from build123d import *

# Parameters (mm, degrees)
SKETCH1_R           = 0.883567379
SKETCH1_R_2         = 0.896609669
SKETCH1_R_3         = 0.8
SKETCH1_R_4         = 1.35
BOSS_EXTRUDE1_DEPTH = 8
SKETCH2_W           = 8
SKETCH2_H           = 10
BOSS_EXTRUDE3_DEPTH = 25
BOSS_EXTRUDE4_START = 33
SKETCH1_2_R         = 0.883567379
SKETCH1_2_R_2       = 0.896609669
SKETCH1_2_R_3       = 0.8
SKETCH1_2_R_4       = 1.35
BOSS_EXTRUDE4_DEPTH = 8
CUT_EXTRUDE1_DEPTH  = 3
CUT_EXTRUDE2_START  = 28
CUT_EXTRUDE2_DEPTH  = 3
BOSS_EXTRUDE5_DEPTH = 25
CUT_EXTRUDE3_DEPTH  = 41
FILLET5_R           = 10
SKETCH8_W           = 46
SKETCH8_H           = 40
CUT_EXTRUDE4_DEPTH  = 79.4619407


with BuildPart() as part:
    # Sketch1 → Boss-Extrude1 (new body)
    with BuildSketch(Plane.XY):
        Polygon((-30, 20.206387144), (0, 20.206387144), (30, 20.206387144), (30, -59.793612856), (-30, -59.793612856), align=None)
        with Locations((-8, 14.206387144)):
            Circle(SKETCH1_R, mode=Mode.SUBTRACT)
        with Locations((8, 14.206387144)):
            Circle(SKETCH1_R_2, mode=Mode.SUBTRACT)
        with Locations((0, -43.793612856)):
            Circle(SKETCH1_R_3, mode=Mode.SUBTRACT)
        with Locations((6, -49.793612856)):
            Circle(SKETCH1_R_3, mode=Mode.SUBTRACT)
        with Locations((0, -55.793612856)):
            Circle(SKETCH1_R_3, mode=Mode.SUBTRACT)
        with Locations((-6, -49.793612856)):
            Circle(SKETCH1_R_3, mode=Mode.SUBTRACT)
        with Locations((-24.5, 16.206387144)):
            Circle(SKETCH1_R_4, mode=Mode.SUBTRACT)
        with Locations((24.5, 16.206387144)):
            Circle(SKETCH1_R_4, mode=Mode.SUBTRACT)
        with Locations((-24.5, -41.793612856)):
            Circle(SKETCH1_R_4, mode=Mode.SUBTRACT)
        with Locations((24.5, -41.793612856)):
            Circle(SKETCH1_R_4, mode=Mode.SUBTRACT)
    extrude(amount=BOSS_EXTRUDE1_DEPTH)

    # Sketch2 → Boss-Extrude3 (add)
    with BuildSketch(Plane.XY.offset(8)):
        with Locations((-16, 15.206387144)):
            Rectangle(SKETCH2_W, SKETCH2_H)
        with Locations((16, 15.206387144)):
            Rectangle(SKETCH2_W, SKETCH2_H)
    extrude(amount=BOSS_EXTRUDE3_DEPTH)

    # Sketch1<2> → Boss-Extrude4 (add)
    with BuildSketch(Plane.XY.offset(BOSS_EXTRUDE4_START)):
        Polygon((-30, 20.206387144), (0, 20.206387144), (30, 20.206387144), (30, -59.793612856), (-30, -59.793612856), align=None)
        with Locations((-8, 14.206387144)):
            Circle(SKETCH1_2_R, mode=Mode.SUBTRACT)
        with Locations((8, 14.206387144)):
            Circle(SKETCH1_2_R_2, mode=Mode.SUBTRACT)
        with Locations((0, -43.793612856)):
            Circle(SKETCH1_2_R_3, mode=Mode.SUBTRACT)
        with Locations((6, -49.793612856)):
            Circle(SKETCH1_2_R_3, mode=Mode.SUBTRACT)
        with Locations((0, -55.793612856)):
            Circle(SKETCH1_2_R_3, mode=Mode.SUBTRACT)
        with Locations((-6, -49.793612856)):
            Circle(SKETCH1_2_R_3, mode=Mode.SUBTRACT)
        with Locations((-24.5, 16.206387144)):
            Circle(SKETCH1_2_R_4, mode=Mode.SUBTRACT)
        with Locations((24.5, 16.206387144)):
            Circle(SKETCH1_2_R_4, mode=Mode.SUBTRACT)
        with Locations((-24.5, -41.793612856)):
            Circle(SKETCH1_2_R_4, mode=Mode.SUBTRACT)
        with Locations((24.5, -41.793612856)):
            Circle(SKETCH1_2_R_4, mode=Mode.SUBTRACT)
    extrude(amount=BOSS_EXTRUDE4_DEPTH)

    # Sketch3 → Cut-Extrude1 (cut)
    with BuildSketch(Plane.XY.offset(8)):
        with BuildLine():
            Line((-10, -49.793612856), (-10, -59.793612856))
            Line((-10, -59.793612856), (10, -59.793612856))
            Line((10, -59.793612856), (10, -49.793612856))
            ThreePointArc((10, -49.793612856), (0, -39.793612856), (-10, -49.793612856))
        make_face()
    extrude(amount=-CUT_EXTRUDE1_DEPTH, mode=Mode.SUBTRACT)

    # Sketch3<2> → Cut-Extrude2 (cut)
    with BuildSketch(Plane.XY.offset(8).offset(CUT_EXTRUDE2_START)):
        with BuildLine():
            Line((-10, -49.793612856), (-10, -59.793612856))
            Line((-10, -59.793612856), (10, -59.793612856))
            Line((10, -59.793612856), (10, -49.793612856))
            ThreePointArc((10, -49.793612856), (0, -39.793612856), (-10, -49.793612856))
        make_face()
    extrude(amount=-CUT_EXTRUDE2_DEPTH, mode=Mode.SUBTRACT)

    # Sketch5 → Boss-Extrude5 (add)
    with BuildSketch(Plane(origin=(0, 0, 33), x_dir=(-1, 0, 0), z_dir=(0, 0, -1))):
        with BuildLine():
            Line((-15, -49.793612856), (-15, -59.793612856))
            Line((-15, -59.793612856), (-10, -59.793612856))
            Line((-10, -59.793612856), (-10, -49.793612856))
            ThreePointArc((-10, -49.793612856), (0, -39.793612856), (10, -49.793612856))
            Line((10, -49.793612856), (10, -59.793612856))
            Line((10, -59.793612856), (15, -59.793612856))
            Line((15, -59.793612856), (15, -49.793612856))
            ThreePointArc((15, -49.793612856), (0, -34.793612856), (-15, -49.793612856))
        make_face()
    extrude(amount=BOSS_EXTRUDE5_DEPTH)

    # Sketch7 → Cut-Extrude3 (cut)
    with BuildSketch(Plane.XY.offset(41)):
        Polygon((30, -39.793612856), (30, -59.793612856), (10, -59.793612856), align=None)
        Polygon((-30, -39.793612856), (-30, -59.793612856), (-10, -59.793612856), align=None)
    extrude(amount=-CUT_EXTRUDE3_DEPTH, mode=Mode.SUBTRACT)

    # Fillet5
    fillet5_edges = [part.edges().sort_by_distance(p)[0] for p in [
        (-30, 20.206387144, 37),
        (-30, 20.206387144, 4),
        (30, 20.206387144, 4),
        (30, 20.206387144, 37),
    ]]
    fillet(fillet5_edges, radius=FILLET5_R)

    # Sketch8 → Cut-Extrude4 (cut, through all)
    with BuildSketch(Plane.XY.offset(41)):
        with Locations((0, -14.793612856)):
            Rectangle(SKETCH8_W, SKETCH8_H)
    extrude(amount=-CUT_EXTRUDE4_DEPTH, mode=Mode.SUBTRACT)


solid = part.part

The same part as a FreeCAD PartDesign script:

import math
import FreeCAD as App
import Part
import Sketcher
Q = App.Units.Quantity


def edges_at(feature, points):
    """Names of the edges that pass closest to the given points."""
    edges = feature.Shape.Edges
    near = lambda p: min(range(len(edges)), key=lambda i: edges[i].distToShape(Part.Vertex(*p))[0])
    return sorted({f"Edge{near(p) + 1}" for p in points})

doc = App.newDocument("Part")
body = doc.addObject("PartDesign::Body", "Body")

sketch1 = body.newObject("Sketcher::SketchObject", "Sketch")
sketch1.AttachmentSupport = (doc.getObject("XY_Plane"), [""])
sketch1.MapMode = "FlatFace"
sketch1.addGeometry([
    Part.LineSegment(App.Vector(30, 20.206387, 0), App.Vector(-30, 20.206387, 0)),
    Part.LineSegment(App.Vector(-30, 20.206387, 0), App.Vector(-30, -59.793613, 0)),
    Part.LineSegment(App.Vector(-30, -59.793613, 0), App.Vector(30, -59.793613, 0)),
    Part.LineSegment(App.Vector(30, -59.793613, 0), App.Vector(30, 20.206387, 0)),
    Part.Circle(App.Vector(24.5, -41.793613, 0), App.Vector(0, 0, 1), 1.35),
    Part.Circle(App.Vector(6, -49.793613, 0), App.Vector(0, 0, 1), 0.8),
    Part.Circle(App.Vector(0, -55.793613, 0), App.Vector(0, 0, 1), 0.8),
    Part.Circle(App.Vector(-6, -49.793613, 0), App.Vector(0, 0, 1), 0.8),
    Part.Circle(App.Vector(0, -43.793613, 0), App.Vector(0, 0, 1), 0.8),
    Part.Circle(App.Vector(-24.5, -41.793613, 0), App.Vector(0, 0, 1), 1.35),
    Part.Circle(App.Vector(24.5, 16.206387, 0), App.Vector(0, 0, 1), 1.35),
    Part.Circle(App.Vector(8, 14.206387, 0), App.Vector(0, 0, 1), 0.89661),
    Part.Circle(App.Vector(-8, 14.206387, 0), App.Vector(0, 0, 1), 0.883567),
    Part.Circle(App.Vector(-24.5, 16.206387, 0), App.Vector(0, 0, 1), 1.35),
], False)
sketch1.addConstraint([
    Sketcher.Constraint("Coincident", 0, 2, 1, 1),
    Sketcher.Constraint("Coincident", 1, 2, 2, 1),
    Sketcher.Constraint("Coincident", 2, 2, 3, 1),
    Sketcher.Constraint("Coincident", 3, 2, 0, 1),
    Sketcher.Constraint("Horizontal", 0),
    Sketcher.Constraint("Vertical", 1),
    Sketcher.Constraint("Horizontal", 2),
    Sketcher.Constraint("Vertical", 3),
    Sketcher.Constraint("Equal", 5, 6),
    Sketcher.Constraint("Equal", 6, 7),
    Sketcher.Constraint("Equal", 7, 8),
    Sketcher.Constraint("Equal", 4, 9),
    Sketcher.Constraint("Equal", 9, 10),
    Sketcher.Constraint("Equal", 10, 13),
    Sketcher.Constraint("Symmetric", 5, 3, 7, 3, -2),
    Sketcher.Constraint("Symmetric", 4, 3, 9, 3, -2),
    Sketcher.Constraint("Symmetric", 11, 3, 12, 3, -2),
    Sketcher.Constraint("Symmetric", 10, 3, 13, 3, -2),
    Sketcher.Constraint("PointOnObject", 6, 3, -2),
    Sketcher.Constraint("PointOnObject", 8, 3, -2),
    Sketcher.Constraint("Vertical", 4, 3, 10, 3),
    Sketcher.Constraint("Diameter", 4, Q("2.7 mm")),
    Sketcher.Constraint("Diameter", 5, Q("1.6 mm")),
    Sketcher.Constraint("DistanceX", 0, 2, 0, 1, Q("60 mm")),
    Sketcher.Constraint("DistanceY", 1, 2, 1, 1, Q("80 mm")),
    Sketcher.Constraint("DistanceX", -1, 1, 5, 3, Q("6 mm")),
    Sketcher.Constraint("DistanceX", -1, 1, 11, 3, Q("8 mm")),
    Sketcher.Constraint("DistanceX", 0, 2, -1, 1, Q("30 mm")),
    Sketcher.Constraint("DistanceY", 5, 3, 4, 3, Q("8 mm")),
    Sketcher.Constraint("DistanceY", 6, 3, 5, 3, Q("6 mm")),
    Sketcher.Constraint("DistanceY", 5, 3, 8, 3, Q("6 mm")),
    Sketcher.Constraint("DistanceX", 9, 3, 4, 3, Q("49 mm")),
    Sketcher.Constraint("DistanceY", 4, 3, 10, 3, Q("58 mm")),
    Sketcher.Constraint("DistanceY", 11, 3, 10, 3, Q("2 mm")),
    Sketcher.Constraint("DistanceY", 13, 3, 0, 2, Q("4 mm")),
    Sketcher.Constraint("Diameter", 11, Q("1.793219 mm")),
    Sketcher.Constraint("Diameter", 12, Q("1.767135 mm")),
    Sketcher.Constraint("DistanceY", 4, 3, -1, 1, Q("41.793613 mm")),
])
pad1 = body.newObject("PartDesign::Pad", "Pad")
pad1.Profile = sketch1
pad1.Length = 8

sketch2 = body.newObject("Sketcher::SketchObject", "Sketch001")
sketch2.AttachmentSupport = (doc.getObject("XY_Plane"), [""])
sketch2.MapMode = "FlatFace"
sketch2.AttachmentOffset = App.Placement(App.Vector(0, 0, 8), App.Rotation())
sketch2.addGeometry([
    Part.LineSegment(App.Vector(-20, 20.206387, 0), App.Vector(-20, 10.206387, 0)),
    Part.LineSegment(App.Vector(-20, 10.206387, 0), App.Vector(-12, 10.206387, 0)),
    Part.LineSegment(App.Vector(-12, 10.206387, 0), App.Vector(-12, 20.206387, 0)),
    Part.LineSegment(App.Vector(-12, 20.206387, 0), App.Vector(-20, 20.206387, 0)),
    Part.LineSegment(App.Vector(12, 20.206387, 0), App.Vector(12, 10.206387, 0)),
    Part.LineSegment(App.Vector(12, 10.206387, 0), App.Vector(20, 10.206387, 0)),
    Part.LineSegment(App.Vector(20, 10.206387, 0), App.Vector(20, 20.206387, 0)),
    Part.LineSegment(App.Vector(20, 20.206387, 0), App.Vector(12, 20.206387, 0)),
], False)
sketch2.addConstraint([
    Sketcher.Constraint("Coincident", 0, 2, 1, 1),
    Sketcher.Constraint("Coincident", 1, 2, 2, 1),
    Sketcher.Constraint("Coincident", 2, 2, 3, 1),
    Sketcher.Constraint("Coincident", 3, 2, 0, 1),
    Sketcher.Constraint("Coincident", 4, 2, 5, 1),
    Sketcher.Constraint("Coincident", 5, 2, 6, 1),
    Sketcher.Constraint("Coincident", 6, 2, 7, 1),
    Sketcher.Constraint("Coincident", 7, 2, 4, 1),
    Sketcher.Constraint("Vertical", 0),
    Sketcher.Constraint("Horizontal", 1),
    Sketcher.Constraint("Vertical", 2),
    Sketcher.Constraint("Horizontal", 3),
    Sketcher.Constraint("Vertical", 4),
    Sketcher.Constraint("Horizontal", 5),
    Sketcher.Constraint("Vertical", 6),
    Sketcher.Constraint("Horizontal", 7),
    Sketcher.Constraint("Symmetric", 1, 2, 4, 2, -2),
    Sketcher.Constraint("Symmetric", 3, 2, 6, 2, -2),
    Sketcher.Constraint("DistanceX", 1, 1, 1, 2, Q("8 mm")),
    Sketcher.Constraint("DistanceY", 0, 2, 0, 1, Q("10 mm")),
    Sketcher.Constraint("DistanceX", 0, 2, -1, 1, Q("20 mm")),
    Sketcher.Constraint("DistanceY", -1, 1, 0, 2, Q("10.206387 mm")),
])
pad2 = body.newObject("PartDesign::Pad", "Pad001")
pad2.Profile = sketch2
pad2.Length = 25

sketch3 = body.newObject("Sketcher::SketchObject", "Sketch002")
sketch3.AttachmentSupport = (doc.getObject("XY_Plane"), [""])
sketch3.MapMode = "FlatFace"
sketch3.AttachmentOffset = App.Placement(App.Vector(0, 0, 33), App.Rotation())
sketch3.addGeometry([
    Part.LineSegment(App.Vector(30, 20.206387, 0), App.Vector(-30, 20.206387, 0)),
    Part.LineSegment(App.Vector(-30, 20.206387, 0), App.Vector(-30, -59.793613, 0)),
    Part.LineSegment(App.Vector(-30, -59.793613, 0), App.Vector(30, -59.793613, 0)),
    Part.LineSegment(App.Vector(30, -59.793613, 0), App.Vector(30, 20.206387, 0)),
    Part.Circle(App.Vector(24.5, -41.793613, 0), App.Vector(0, 0, 1), 1.35),
    Part.Circle(App.Vector(6, -49.793613, 0), App.Vector(0, 0, 1), 0.8),
    Part.Circle(App.Vector(0, -55.793613, 0), App.Vector(0, 0, 1), 0.8),
    Part.Circle(App.Vector(-6, -49.793613, 0), App.Vector(0, 0, 1), 0.8),
    Part.Circle(App.Vector(0, -43.793613, 0), App.Vector(0, 0, 1), 0.8),
    Part.Circle(App.Vector(-24.5, -41.793613, 0), App.Vector(0, 0, 1), 1.35),
    Part.Circle(App.Vector(24.5, 16.206387, 0), App.Vector(0, 0, 1), 1.35),
    Part.Circle(App.Vector(8, 14.206387, 0), App.Vector(0, 0, 1), 0.89661),
    Part.Circle(App.Vector(-8, 14.206387, 0), App.Vector(0, 0, 1), 0.883567),
    Part.Circle(App.Vector(-24.5, 16.206387, 0), App.Vector(0, 0, 1), 1.35),
], False)
sketch3.addConstraint([
    Sketcher.Constraint("Coincident", 0, 2, 1, 1),
    Sketcher.Constraint("Coincident", 1, 2, 2, 1),
    Sketcher.Constraint("Coincident", 2, 2, 3, 1),
    Sketcher.Constraint("Coincident", 3, 2, 0, 1),
    Sketcher.Constraint("Horizontal", 0),
    Sketcher.Constraint("Vertical", 1),
    Sketcher.Constraint("Horizontal", 2),
    Sketcher.Constraint("Vertical", 3),
    Sketcher.Constraint("Equal", 5, 6),
    Sketcher.Constraint("Equal", 6, 7),
    Sketcher.Constraint("Equal", 7, 8),
    Sketcher.Constraint("Equal", 4, 9),
    Sketcher.Constraint("Equal", 9, 10),
    Sketcher.Constraint("Equal", 10, 13),
    Sketcher.Constraint("Symmetric", 5, 3, 7, 3, -2),
    Sketcher.Constraint("Symmetric", 4, 3, 9, 3, -2),
    Sketcher.Constraint("Symmetric", 11, 3, 12, 3, -2),
    Sketcher.Constraint("Symmetric", 10, 3, 13, 3, -2),
    Sketcher.Constraint("PointOnObject", 6, 3, -2),
    Sketcher.Constraint("PointOnObject", 8, 3, -2),
    Sketcher.Constraint("Vertical", 4, 3, 10, 3),
    Sketcher.Constraint("Diameter", 4, Q("2.7 mm")),
    Sketcher.Constraint("Diameter", 5, Q("1.6 mm")),
    Sketcher.Constraint("DistanceX", 0, 2, 0, 1, Q("60 mm")),
    Sketcher.Constraint("DistanceY", 1, 2, 1, 1, Q("80 mm")),
    Sketcher.Constraint("DistanceX", -1, 1, 5, 3, Q("6 mm")),
    Sketcher.Constraint("DistanceX", -1, 1, 11, 3, Q("8 mm")),
    Sketcher.Constraint("DistanceX", 0, 2, -1, 1, Q("30 mm")),
    Sketcher.Constraint("DistanceY", 5, 3, 4, 3, Q("8 mm")),
    Sketcher.Constraint("DistanceY", 6, 3, 5, 3, Q("6 mm")),
    Sketcher.Constraint("DistanceY", 5, 3, 8, 3, Q("6 mm")),
    Sketcher.Constraint("DistanceX", 9, 3, 4, 3, Q("49 mm")),
    Sketcher.Constraint("DistanceY", 4, 3, 10, 3, Q("58 mm")),
    Sketcher.Constraint("DistanceY", 11, 3, 10, 3, Q("2 mm")),
    Sketcher.Constraint("DistanceY", 13, 3, 0, 2, Q("4 mm")),
    Sketcher.Constraint("Diameter", 11, Q("1.793219 mm")),
    Sketcher.Constraint("Diameter", 12, Q("1.767135 mm")),
    Sketcher.Constraint("DistanceY", 4, 3, -1, 1, Q("41.793613 mm")),
])
pad3 = body.newObject("PartDesign::Pad", "Pad002")
pad3.Profile = sketch3
pad3.Length = 8

sketch4 = body.newObject("Sketcher::SketchObject", "Sketch003")
sketch4.AttachmentSupport = (doc.getObject("XY_Plane"), [""])
sketch4.MapMode = "FlatFace"
sketch4.AttachmentOffset = App.Placement(App.Vector(0, 0, 8), App.Rotation())
sketch4.addGeometry([
    Part.LineSegment(App.Vector(-10, -49.793613, 0), App.Vector(-10, -59.793613, 0)),
    Part.LineSegment(App.Vector(-10, -59.793613, 0), App.Vector(10, -59.793613, 0)),
    Part.LineSegment(App.Vector(10, -59.793613, 0), App.Vector(10, -49.793613, 0)),
    Part.ArcOfCircle(Part.Circle(App.Vector(0, -49.793613, 0), App.Vector(0, 0, 1), 10), math.radians(0), math.radians(180)),
], False)
sketch4.addConstraint([
    Sketcher.Constraint("Coincident", 0, 2, 1, 1),
    Sketcher.Constraint("Coincident", 1, 2, 2, 1),
    Sketcher.Constraint("Tangent", 2, 2, 3, 1),
    Sketcher.Constraint("Tangent", 3, 2, 0, 1),
    Sketcher.Constraint("Vertical", 0),
    Sketcher.Constraint("Horizontal", 1),
    Sketcher.Constraint("Vertical", 2),
    Sketcher.Constraint("PointOnObject", 3, 3, -2),
    Sketcher.Constraint("Radius", 3, Q("10 mm")),
    Sketcher.Constraint("DistanceY", 0, 2, 0, 1, Q("10 mm")),
    Sketcher.Constraint("DistanceY", 3, 3, -1, 1, Q("49.793613 mm")),
])
pocket1 = body.newObject("PartDesign::Pocket", "Pocket")
pocket1.Profile = sketch4
pocket1.Length = 3

sketch5 = body.newObject("Sketcher::SketchObject", "Sketch004")
sketch5.AttachmentSupport = (doc.getObject("XY_Plane"), [""])
sketch5.MapMode = "FlatFace"
sketch5.AttachmentOffset = App.Placement(App.Vector(0, 0, 36), App.Rotation())
sketch5.addGeometry([
    Part.LineSegment(App.Vector(-10, -49.793613, 0), App.Vector(-10, -59.793613, 0)),
    Part.LineSegment(App.Vector(-10, -59.793613, 0), App.Vector(10, -59.793613, 0)),
    Part.LineSegment(App.Vector(10, -59.793613, 0), App.Vector(10, -49.793613, 0)),
    Part.ArcOfCircle(Part.Circle(App.Vector(0, -49.793613, 0), App.Vector(0, 0, 1), 10), math.radians(0), math.radians(180)),
], False)
sketch5.addConstraint([
    Sketcher.Constraint("Coincident", 0, 2, 1, 1),
    Sketcher.Constraint("Coincident", 1, 2, 2, 1),
    Sketcher.Constraint("Tangent", 2, 2, 3, 1),
    Sketcher.Constraint("Tangent", 3, 2, 0, 1),
    Sketcher.Constraint("Vertical", 0),
    Sketcher.Constraint("Horizontal", 1),
    Sketcher.Constraint("Vertical", 2),
    Sketcher.Constraint("PointOnObject", 3, 3, -2),
    Sketcher.Constraint("Radius", 3, Q("10 mm")),
    Sketcher.Constraint("DistanceY", 0, 2, 0, 1, Q("10 mm")),
    Sketcher.Constraint("DistanceY", 3, 3, -1, 1, Q("49.793613 mm")),
])
pocket2 = body.newObject("PartDesign::Pocket", "Pocket001")
pocket2.Profile = sketch5
pocket2.Length = 3

sketch6 = body.newObject("Sketcher::SketchObject", "Sketch005")
sketch6.AttachmentSupport = (doc.getObject("XY_Plane"), [""])
sketch6.MapMode = "FlatFace"
sketch6.AttachmentOffset = App.Placement(App.Vector(0, 0, 33), App.Rotation())
sketch6.addGeometry([
    Part.LineSegment(App.Vector(15, -49.793613, 0), App.Vector(15, -59.793613, 0)),
    Part.LineSegment(App.Vector(15, -59.793613, 0), App.Vector(10, -59.793613, 0)),
    Part.LineSegment(App.Vector(10, -59.793613, 0), App.Vector(10, -49.793613, 0)),
    Part.ArcOfCircle(Part.Circle(App.Vector(0, -49.793613, 0), App.Vector(0, 0, 1), 10), math.radians(0), math.radians(180)),
    Part.LineSegment(App.Vector(-10, -49.793613, 0), App.Vector(-10, -59.793613, 0)),
    Part.LineSegment(App.Vector(-10, -59.793613, 0), App.Vector(-15, -59.793613, 0)),
    Part.LineSegment(App.Vector(-15, -59.793613, 0), App.Vector(-15, -49.793613, 0)),
    Part.ArcOfCircle(Part.Circle(App.Vector(0, -49.793613, 0), App.Vector(0, 0, 1), 15), math.radians(0), math.radians(180)),
], False)
sketch6.addConstraint([
    Sketcher.Constraint("Coincident", 0, 2, 1, 1),
    Sketcher.Constraint("Coincident", 1, 2, 2, 1),
    Sketcher.Constraint("Tangent", 2, 2, 3, 1),
    Sketcher.Constraint("Tangent", 3, 2, 4, 1),
    Sketcher.Constraint("Coincident", 4, 2, 5, 1),
    Sketcher.Constraint("Coincident", 5, 2, 6, 1),
    Sketcher.Constraint("Tangent", 6, 2, 7, 2),
    Sketcher.Constraint("Tangent", 7, 1, 0, 1),
    Sketcher.Constraint("Vertical", 0),
    Sketcher.Constraint("Horizontal", 1),
    Sketcher.Constraint("Vertical", 2),
    Sketcher.Constraint("Vertical", 4),
    Sketcher.Constraint("Horizontal", 5),
    Sketcher.Constraint("Vertical", 6),
    Sketcher.Constraint("Coincident", 7, 3, 3, 3),
    Sketcher.Constraint("Symmetric", 1, 2, 4, 2, -2),
    Sketcher.Constraint("Radius", 3, Q("10 mm")),
    Sketcher.Constraint("Radius", 7, Q("15 mm")),
    Sketcher.Constraint("DistanceY", 0, 2, 0, 1, Q("10 mm")),
    Sketcher.Constraint("DistanceY", 3, 3, -1, 1, Q("49.793613 mm")),
])
pad4 = body.newObject("PartDesign::Pad", "Pad003")
pad4.Profile = sketch6
pad4.Length = 25
pad4.Reversed = True

sketch7 = body.newObject("Sketcher::SketchObject", "Sketch006")
sketch7.AttachmentSupport = (doc.getObject("XY_Plane"), [""])
sketch7.MapMode = "FlatFace"
sketch7.AttachmentOffset = App.Placement(App.Vector(0, 0, 41), App.Rotation())
sketch7.addGeometry([
    Part.LineSegment(App.Vector(30, -59.793613, 0), App.Vector(30, -39.793613, 0)),
    Part.LineSegment(App.Vector(30, -39.793613, 0), App.Vector(10, -59.793613, 0)),
    Part.LineSegment(App.Vector(10, -59.793613, 0), App.Vector(30, -59.793613, 0)),
    Part.LineSegment(App.Vector(-30, -39.793613, 0), App.Vector(-30, -59.793613, 0)),
    Part.LineSegment(App.Vector(-30, -59.793613, 0), App.Vector(-10, -59.793613, 0)),
    Part.LineSegment(App.Vector(-10, -59.793613, 0), App.Vector(-30, -39.793613, 0)),
], False)
sketch7.addConstraint([
    Sketcher.Constraint("Coincident", 0, 2, 1, 1),
    Sketcher.Constraint("Coincident", 1, 2, 2, 1),
    Sketcher.Constraint("Coincident", 2, 2, 0, 1),
    Sketcher.Constraint("Coincident", 3, 2, 4, 1),
    Sketcher.Constraint("Coincident", 4, 2, 5, 1),
    Sketcher.Constraint("Coincident", 5, 2, 3, 1),
    Sketcher.Constraint("Vertical", 0),
    Sketcher.Constraint("Horizontal", 2),
    Sketcher.Constraint("Vertical", 3),
    Sketcher.Constraint("Horizontal", 4),
    Sketcher.Constraint("Symmetric", 2, 2, 3, 2, -2),
    Sketcher.Constraint("Perpendicular", 1, 5),
    Sketcher.Constraint("Horizontal", 0, 2, 5, 2),
    Sketcher.Constraint("Equal", 2, 4),
    Sketcher.Constraint("DistanceX", 2, 1, 2, 2, Q("20 mm")),
    Sketcher.Constraint("DistanceX", -1, 1, 0, 2, Q("30 mm")),
    Sketcher.Constraint("DistanceY", 0, 2, -1, 1, Q("39.793613 mm")),
])
pocket3 = body.newObject("PartDesign::Pocket", "Pocket002")
pocket3.Profile = sketch7
pocket3.Length = 41
doc.recompute()

fillet = body.newObject("PartDesign::Fillet", "Fillet")
fillet.Base = (pocket3, edges_at(pocket3, [
    (-30, 20.206, 37),
    (-30, 20.206, 4),
    (30, 20.206, 4),
    (30, 20.206, 37),
]))
fillet.Radius = 10

sketch8 = body.newObject("Sketcher::SketchObject", "Sketch007")
sketch8.AttachmentSupport = (doc.getObject("XY_Plane"), [""])
sketch8.MapMode = "FlatFace"
sketch8.AttachmentOffset = App.Placement(App.Vector(0, 0, 41), App.Rotation())
sketch8.addGeometry([
    Part.LineSegment(App.Vector(-23, 5.206387, 0), App.Vector(-23, -34.793613, 0)),
    Part.LineSegment(App.Vector(-23, -34.793613, 0), App.Vector(23, -34.793613, 0)),
    Part.LineSegment(App.Vector(23, -34.793613, 0), App.Vector(23, 5.206387, 0)),
    Part.LineSegment(App.Vector(23, 5.206387, 0), App.Vector(-23, 5.206387, 0)),
], False)
sketch8.addConstraint([
    Sketcher.Constraint("Coincident", 0, 2, 1, 1),
    Sketcher.Constraint("Coincident", 1, 2, 2, 1),
    Sketcher.Constraint("Coincident", 2, 2, 3, 1),
    Sketcher.Constraint("Coincident", 3, 2, 0, 1),
    Sketcher.Constraint("Vertical", 0),
    Sketcher.Constraint("Horizontal", 1),
    Sketcher.Constraint("Vertical", 2),
    Sketcher.Constraint("Horizontal", 3),
    Sketcher.Constraint("DistanceX", 1, 1, 1, 2, Q("46 mm")),
    Sketcher.Constraint("DistanceY", 0, 2, 0, 1, Q("40 mm")),
    Sketcher.Constraint("DistanceX", 0, 2, -1, 1, Q("23 mm")),
    Sketcher.Constraint("DistanceY", 0, 2, -1, 1, Q("34.793613 mm")),
])
pocket4 = body.newObject("PartDesign::Pocket", "Pocket003")
pocket4.Profile = sketch8
pocket4.Type = "ThroughAll"

doc.recompute()
